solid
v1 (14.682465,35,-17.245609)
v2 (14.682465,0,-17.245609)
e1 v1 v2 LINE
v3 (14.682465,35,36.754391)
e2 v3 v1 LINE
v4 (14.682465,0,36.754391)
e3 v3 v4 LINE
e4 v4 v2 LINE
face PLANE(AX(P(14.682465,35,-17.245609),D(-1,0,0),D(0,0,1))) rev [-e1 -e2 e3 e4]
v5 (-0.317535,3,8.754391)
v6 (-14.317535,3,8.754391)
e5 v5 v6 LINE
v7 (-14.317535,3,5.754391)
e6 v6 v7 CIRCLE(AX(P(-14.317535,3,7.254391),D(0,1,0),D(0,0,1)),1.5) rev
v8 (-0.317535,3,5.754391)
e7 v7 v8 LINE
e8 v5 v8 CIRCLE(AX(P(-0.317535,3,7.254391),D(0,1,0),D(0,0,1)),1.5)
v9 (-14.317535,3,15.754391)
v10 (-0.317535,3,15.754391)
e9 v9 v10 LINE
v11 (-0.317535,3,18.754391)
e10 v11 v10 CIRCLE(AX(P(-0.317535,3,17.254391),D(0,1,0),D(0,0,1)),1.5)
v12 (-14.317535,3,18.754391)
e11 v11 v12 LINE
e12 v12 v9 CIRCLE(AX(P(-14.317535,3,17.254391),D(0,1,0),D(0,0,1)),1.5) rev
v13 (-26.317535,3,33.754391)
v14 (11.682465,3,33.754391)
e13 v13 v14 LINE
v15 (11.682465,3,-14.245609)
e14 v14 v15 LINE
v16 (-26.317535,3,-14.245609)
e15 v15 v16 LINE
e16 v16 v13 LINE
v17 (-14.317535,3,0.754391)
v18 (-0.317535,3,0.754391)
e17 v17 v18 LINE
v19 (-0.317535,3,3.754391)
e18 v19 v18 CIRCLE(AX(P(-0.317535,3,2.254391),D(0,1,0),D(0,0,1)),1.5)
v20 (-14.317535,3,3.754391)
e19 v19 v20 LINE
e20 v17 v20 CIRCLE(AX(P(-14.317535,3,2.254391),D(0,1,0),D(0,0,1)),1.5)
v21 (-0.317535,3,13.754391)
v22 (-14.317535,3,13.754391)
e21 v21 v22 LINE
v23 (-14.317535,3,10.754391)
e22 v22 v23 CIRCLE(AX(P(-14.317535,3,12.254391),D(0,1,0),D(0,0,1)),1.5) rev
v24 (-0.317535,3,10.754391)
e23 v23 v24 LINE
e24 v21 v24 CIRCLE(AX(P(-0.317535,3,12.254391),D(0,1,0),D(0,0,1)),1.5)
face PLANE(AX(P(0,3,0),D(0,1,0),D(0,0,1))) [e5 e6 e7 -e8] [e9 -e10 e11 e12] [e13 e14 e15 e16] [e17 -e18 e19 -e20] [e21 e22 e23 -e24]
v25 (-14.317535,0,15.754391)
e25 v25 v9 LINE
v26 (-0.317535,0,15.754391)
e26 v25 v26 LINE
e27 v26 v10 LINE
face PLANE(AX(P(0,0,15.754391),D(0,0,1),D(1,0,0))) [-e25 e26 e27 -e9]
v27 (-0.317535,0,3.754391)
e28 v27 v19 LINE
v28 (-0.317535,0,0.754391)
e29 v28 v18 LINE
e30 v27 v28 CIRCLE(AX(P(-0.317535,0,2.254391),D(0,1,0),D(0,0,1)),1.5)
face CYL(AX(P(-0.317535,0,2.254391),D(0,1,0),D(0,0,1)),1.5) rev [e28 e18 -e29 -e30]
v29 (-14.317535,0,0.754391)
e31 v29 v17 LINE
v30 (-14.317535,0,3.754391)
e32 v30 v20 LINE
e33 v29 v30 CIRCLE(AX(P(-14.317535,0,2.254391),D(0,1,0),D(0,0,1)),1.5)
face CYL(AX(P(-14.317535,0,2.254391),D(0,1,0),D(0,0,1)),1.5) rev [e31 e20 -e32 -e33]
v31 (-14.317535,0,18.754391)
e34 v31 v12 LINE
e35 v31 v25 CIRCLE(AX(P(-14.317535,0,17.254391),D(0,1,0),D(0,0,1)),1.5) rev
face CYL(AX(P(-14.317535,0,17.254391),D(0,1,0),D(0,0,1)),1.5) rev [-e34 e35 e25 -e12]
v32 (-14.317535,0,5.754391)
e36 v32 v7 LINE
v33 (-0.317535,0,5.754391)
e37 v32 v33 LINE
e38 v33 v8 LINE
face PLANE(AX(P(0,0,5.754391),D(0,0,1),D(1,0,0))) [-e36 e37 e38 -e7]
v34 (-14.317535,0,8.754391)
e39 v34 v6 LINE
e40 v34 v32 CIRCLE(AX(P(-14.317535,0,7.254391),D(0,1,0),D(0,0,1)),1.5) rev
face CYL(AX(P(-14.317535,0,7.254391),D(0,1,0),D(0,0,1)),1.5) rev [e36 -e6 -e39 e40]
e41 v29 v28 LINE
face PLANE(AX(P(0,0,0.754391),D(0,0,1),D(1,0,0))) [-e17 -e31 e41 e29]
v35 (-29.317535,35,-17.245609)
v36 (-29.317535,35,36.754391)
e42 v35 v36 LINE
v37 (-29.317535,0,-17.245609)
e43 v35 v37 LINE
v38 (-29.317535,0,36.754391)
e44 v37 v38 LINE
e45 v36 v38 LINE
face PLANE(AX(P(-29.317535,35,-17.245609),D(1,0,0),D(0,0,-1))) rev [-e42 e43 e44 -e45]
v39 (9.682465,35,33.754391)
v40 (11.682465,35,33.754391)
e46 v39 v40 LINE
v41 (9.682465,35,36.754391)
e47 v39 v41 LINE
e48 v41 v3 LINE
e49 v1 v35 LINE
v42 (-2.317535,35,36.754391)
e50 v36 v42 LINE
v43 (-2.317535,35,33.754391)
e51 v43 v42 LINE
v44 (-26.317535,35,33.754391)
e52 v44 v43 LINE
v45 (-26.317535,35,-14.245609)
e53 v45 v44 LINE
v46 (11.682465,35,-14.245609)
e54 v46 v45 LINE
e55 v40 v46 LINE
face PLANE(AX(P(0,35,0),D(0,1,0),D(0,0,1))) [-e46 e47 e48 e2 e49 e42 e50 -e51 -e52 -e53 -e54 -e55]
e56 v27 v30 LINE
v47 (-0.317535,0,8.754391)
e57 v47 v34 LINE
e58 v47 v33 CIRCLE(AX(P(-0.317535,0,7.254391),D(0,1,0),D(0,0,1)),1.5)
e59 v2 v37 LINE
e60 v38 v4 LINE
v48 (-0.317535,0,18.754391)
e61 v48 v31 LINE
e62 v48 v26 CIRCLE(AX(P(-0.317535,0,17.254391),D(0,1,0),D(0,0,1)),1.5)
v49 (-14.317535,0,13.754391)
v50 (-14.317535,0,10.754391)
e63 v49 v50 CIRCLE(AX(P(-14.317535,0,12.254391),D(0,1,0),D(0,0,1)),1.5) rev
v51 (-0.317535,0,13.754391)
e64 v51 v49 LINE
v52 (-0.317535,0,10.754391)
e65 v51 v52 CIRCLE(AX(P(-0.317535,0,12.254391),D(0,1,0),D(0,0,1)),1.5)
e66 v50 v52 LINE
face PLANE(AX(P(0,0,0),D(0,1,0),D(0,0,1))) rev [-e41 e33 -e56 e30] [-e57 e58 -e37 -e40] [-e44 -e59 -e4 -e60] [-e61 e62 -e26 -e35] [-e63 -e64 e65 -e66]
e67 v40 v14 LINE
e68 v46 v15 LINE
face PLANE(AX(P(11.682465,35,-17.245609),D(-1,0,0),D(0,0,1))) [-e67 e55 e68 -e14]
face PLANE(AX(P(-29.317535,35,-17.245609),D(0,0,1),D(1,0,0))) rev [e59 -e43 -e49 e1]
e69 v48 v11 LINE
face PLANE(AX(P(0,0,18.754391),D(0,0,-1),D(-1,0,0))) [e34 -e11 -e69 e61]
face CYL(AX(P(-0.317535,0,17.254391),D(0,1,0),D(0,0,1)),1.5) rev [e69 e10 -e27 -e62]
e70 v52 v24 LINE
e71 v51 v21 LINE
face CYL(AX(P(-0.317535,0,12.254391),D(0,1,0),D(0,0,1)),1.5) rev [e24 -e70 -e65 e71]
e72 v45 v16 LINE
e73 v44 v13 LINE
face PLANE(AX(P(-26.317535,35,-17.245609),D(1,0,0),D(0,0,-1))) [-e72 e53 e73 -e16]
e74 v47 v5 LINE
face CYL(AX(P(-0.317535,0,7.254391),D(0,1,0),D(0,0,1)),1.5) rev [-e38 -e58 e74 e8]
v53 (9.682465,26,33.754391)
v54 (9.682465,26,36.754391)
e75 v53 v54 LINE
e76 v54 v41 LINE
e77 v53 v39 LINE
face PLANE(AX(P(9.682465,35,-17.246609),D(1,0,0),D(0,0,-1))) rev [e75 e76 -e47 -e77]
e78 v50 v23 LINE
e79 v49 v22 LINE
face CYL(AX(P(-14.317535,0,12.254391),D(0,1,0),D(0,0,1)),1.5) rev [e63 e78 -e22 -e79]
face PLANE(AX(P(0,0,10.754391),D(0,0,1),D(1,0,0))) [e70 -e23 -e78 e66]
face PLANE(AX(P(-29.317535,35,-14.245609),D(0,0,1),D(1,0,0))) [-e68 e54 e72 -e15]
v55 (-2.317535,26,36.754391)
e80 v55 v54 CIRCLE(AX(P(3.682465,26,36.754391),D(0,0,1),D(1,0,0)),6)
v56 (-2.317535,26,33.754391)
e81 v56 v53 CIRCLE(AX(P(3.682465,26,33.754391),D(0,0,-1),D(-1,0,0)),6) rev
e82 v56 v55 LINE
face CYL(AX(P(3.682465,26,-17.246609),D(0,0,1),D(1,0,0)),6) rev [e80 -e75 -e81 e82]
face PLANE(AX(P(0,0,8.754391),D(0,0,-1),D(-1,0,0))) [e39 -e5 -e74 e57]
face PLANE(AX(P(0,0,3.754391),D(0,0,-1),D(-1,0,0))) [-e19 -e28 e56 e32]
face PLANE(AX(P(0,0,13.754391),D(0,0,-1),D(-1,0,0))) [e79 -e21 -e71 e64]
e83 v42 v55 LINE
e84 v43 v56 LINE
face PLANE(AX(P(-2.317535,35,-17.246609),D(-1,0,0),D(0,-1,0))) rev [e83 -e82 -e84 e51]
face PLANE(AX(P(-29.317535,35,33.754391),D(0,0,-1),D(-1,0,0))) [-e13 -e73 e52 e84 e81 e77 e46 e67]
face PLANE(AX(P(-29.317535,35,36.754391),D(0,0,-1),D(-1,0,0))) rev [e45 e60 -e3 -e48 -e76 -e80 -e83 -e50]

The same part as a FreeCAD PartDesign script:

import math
import FreeCAD as App
import Part
import Sketcher
from FreeCAD import Vector
Q = App.Units.Quantity


def faces_at(feature, points):
    """Names of the faces that lie closest to the given points."""
    faces = feature.Shape.Faces
    near = lambda p: min(range(len(faces)), key=lambda i: faces[i].distToShape(Part.Vertex(*p))[0])
    return sorted({f"Face{near(p) + 1}" for p in points})

doc = App.newDocument("Part")
body = doc.addObject("PartDesign::Body", "Body")

sketch1 = doc.addObject("Sketcher::SketchObject", "Sketch")
body.addObject(sketch1)
sketch1.AttachmentSupport = (doc.XZ_Plane, [""])
sketch1.MapMode = "FlatFace"
sketch1.addGeometry(Part.LineSegment(Vector(-29, -17, 0), Vector(-29, 37, 0)), False)
sketch1.addGeometry(Part.LineSegment(Vector(-29, 37, 0), Vector(15, 37, 0)), False)
sketch1.addGeometry(Part.LineSegment(Vector(15, 37, 0), Vector(15, -17, 0)), False)
sketch1.addGeometry(Part.LineSegment(Vector(15, -17, 0), Vector(-29, -17, 0)), False)
sketch1.addConstraint(Sketcher.Constraint("Coincident", 0, 2, 1, 1))
sketch1.addConstraint(Sketcher.Constraint("Coincident", 1, 2, 2, 1))
sketch1.addConstraint(Sketcher.Constraint("Coincident", 2, 2, 3, 1))
sketch1.addConstraint(Sketcher.Constraint("Coincident", 3, 2, 0, 1))
sketch1.addConstraint(Sketcher.Constraint("Vertical", 0))
sketch1.addConstraint(Sketcher.Constraint("Horizontal", 1))
sketch1.addConstraint(Sketcher.Constraint("Vertical", 2))
sketch1.addConstraint(Sketcher.Constraint("Horizontal", 3))
sketch1.addConstraint(Sketcher.Constraint("DistanceX", 1, 1, 1, 2, Q("44 mm")))
sketch1.addConstraint(Sketcher.Constraint("DistanceY", 0, 1, 0, 2, Q("54 mm")))
sketch1.addConstraint(Sketcher.Constraint("DistanceY", -1, 1, 0, 2, Q("36.754391 mm")))
sketch1.addConstraint(Sketcher.Constraint("DistanceX", 0, 2, -1, 1, Q("29.317535 mm")))
pad1 = doc.addObject("PartDesign::Pad", "Pad")
body.addObject(pad1)
pad1.Profile = sketch1
pad1.Length = 35
pad1.Reversed = True
doc.recompute()

thickness = doc.addObject("PartDesign::Thickness", "Thickness")
body.addObject(thickness)
thickness.Base = (pad1, faces_at(pad1, [(-7.318, 35, 9.754)]))
thickness.Value = 3
thickness.Reversed = True
thickness.Join = "Intersection"

sketch2 = doc.addObject("Sketcher::SketchObject", "Sketch001")
body.addObject(sketch2)
sketch2.AttachmentSupport = (doc.XZ_Plane, [""])
sketch2.MapMode = "FlatFace"
sketch2.AttachmentOffset = App.Placement(Vector(0, 0, -3), App.Rotation())
sketch2.addGeometry(Part.LineSegment(Vector(-0.3, 0.8, 0), Vector(-14.3, 0.8, 0)), False)
sketch2.addGeometry(Part.ArcOfCircle(Part.Circle(Vector(-14.3, 2.3, 0), Vector(0, 0, 1), 1.5), math.radians(90), math.radians(270)), False)
sketch2.addGeometry(Part.LineSegment(Vector(-14.3, 3.8, 0), Vector(-0.3, 3.8, 0)), False)
sketch2.addGeometry(Part.ArcOfCircle(Part.Circle(Vector(-0.3, 2.3, 0), Vector(0, 0, 1), 1.5), math.radians(-90), math.radians(90)), False)
sketch2.addGeometry(Part.LineSegment(Vector(-0.3, 5.8, 0), Vector(-14.3, 5.8, 0)), False)
sketch2.addGeometry(Part.ArcOfCircle(Part.Circle(Vector(-14.3, 7.3, 0), Vector(0, 0, 1), 1.5), math.radians(90), math.radians(270)), False)
sketch2.addGeometry(Part.LineSegment(Vector(-14.3, 8.8, 0), Vector(-0.3, 8.8, 0)), False)
sketch2.addGeometry(Part.ArcOfCircle(Part.Circle(Vector(-0.3, 7.3, 0), Vector(0, 0, 1), 1.5), math.radians(-90), math.radians(90)), False)
sketch2.addGeometry(Part.LineSegment(Vector(-0.3, 10.8, 0), Vector(-14.3, 10.8, 0)), False)
sketch2.addGeometry(Part.ArcOfCircle(Part.Circle(Vector(-14.3, 12.3, 0), Vector(0, 0, 1), 1.5), math.radians(90), math.radians(270)), False)
sketch2.addGeometry(Part.LineSegment(Vector(-14.3, 13.8, 0), Vector(-0.3, 13.8, 0)), False)
sketch2.addGeometry(Part.ArcOfCircle(Part.Circle(Vector(-0.3, 12.3, 0), Vector(0, 0, 1), 1.5), math.radians(-90), math.radians(90)), False)
sketch2.addGeometry(Part.LineSegment(Vector(-0.3, 15.8, 0), Vector(-14.3, 15.8, 0)), False)
sketch2.addGeometry(Part.ArcOfCircle(Part.Circle(Vector(-14.3, 17.3, 0), Vector(0, 0, 1), 1.5), math.radians(90), math.radians(270)), False)
sketch2.addGeometry(Part.LineSegment(Vector(-14.3, 18.8, 0), Vector(-0.3, 18.8, 0)), False)
sketch2.addGeometry(Part.ArcOfCircle(Part.Circle(Vector(-0.3, 17.3, 0), Vector(0, 0, 1), 1.5), math.radians(-90), math.radians(90)), False)
sketch2.addConstraint(Sketcher.Constraint("Tangent", 0, 2, 1, 2))
sketch2.addConstraint(Sketcher.Constraint("Tangent", 1, 1, 2, 1))
sketch2.addConstraint(Sketcher.Constraint("Tangent", 2, 2, 3, 2))
sketch2.addConstraint(Sketcher.Constraint("Tangent", 3, 1, 0, 1))
sketch2.addConstraint(Sketcher.Constraint("Tangent", 4, 2, 5, 2))
sketch2.addConstraint(Sketcher.Constraint("Tangent", 5, 1, 6, 1))
sketch2.addConstraint(Sketcher.Constraint("Tangent", 6, 2, 7, 2))
sketch2.addConstraint(Sketcher.Constraint("Tangent", 7, 1, 4, 1))
sketch2.addConstraint(Sketcher.Constraint("Tangent", 8, 2, 9, 2))
sketch2.addConstraint(Sketcher.Constraint("Tangent", 9, 1, 10, 1))
sketch2.addConstraint(Sketcher.Constraint("Tangent", 10, 2, 11, 2))
sketch2.addConstraint(Sketcher.Constraint("Tangent", 11, 1, 8, 1))
sketch2.addConstraint(Sketcher.Constraint("Tangent", 12, 2, 13, 2))
sketch2.addConstraint(Sketcher.Constraint("Tangent", 13, 1, 14, 1))
sketch2.addConstraint(Sketcher.Constraint("Tangent", 14, 2, 15, 2))
sketch2.addConstraint(Sketcher.Constraint("Tangent", 15, 1, 12, 1))
sketch2.addConstraint(Sketcher.Constraint("Horizontal", 0))
sketch2.addConstraint(Sketcher.Constraint("Horizontal", 2))
sketch2.addConstraint(Sketcher.Constraint("Horizontal", 4))
sketch2.addConstraint(Sketcher.Constraint("Horizontal", 6))
sketch2.addConstraint(Sketcher.Constraint("Horizontal", 8))
sketch2.addConstraint(Sketcher.Constraint("Horizontal", 10))
sketch2.addConstraint(Sketcher.Constraint("Horizontal", 12))
sketch2.addConstraint(Sketcher.Constraint("Horizontal", 14))
sketch2.addConstraint(Sketcher.Constraint("Equal", 3, 5))
sketch2.addConstraint(Sketcher.Constraint("Equal", 7, 9))
sketch2.addConstraint(Sketcher.Constraint("Equal", 11, 13))
sketch2.addConstraint(Sketcher.Constraint("Vertical", 1, 3, 5, 3))
sketch2.addConstraint(Sketcher.Constraint("Vertical", 3, 3, 7, 3))
sketch2.addConstraint(Sketcher.Constraint("Vertical", 5, 3, 9, 3))
sketch2.addConstraint(Sketcher.Constraint("Vertical", 7, 3, 11, 3))
sketch2.addConstraint(Sketcher.Constraint("Vertical", 9, 3, 13, 3))
sketch2.addConstraint(Sketcher.Constraint("Vertical", 11, 3, 15, 3))
sketch2.addConstraint(Sketcher.Constraint("Radius", 1, Q("1.5 mm")))
sketch2.addConstraint(Sketcher.Constraint("DistanceX", 0, 2, 0, 1, Q("14 mm")))
sketch2.addConstraint(Sketcher.Constraint("DistanceY", 1, 3, 5, 3, Q("5 mm")))
sketch2.addConstraint(Sketcher.Constraint("DistanceY", 5, 3, 9, 3, Q("5 mm")))
sketch2.addConstraint(Sketcher.Constraint("DistanceY", 9, 3, 13, 3, Q("5 mm")))
sketch2.addConstraint(Sketcher.Constraint("DistanceY", -1, 1, 1, 3, Q("2.254391 mm")))
sketch2.addConstraint(Sketcher.Constraint("DistanceX", 1, 3, -1, 1, Q("14.317535 mm")))
pocket1 = doc.addObject("PartDesign::Pocket", "Pocket")
body.addObject(pocket1)
pocket1.Profile = sketch2
pocket1.Type = "ThroughAll"
pocket1.Reversed = True

sketch3 = doc.addObject("Sketcher::SketchObject", "Sketch002")
body.addObject(sketch3)
sketch3.AttachmentSupport = (doc.XY_Plane, [""])
sketch3.MapMode = "FlatFace"
sketch3.AttachmentOffset = App.Placement(Vector(0, 0, 36.754391), App.Rotation())
sketch3.addGeometry(Part.LineSegment(Vector(10, 26, 0), Vector(10, 35, 0)), False)
sketch3.addGeometry(Part.LineSegment(Vector(10, 35, 0), Vector(-2, 35, 0)), False)
sketch3.addGeometry(Part.LineSegment(Vector(-2, 35, 0), Vector(-2, 26, 0)), False)
sketch3.addGeometry(Part.ArcOfCircle(Part.Circle(Vector(4, 26, 0), Vector(0, 0, 1), 6), math.radians(180), math.radians(360)), False)
sketch3.addConstraint(Sketcher.Constraint("Coincident", 0, 2, 1, 1))
sketch3.addConstraint(Sketcher.Constraint("Coincident", 1, 2, 2, 1))
sketch3.addConstraint(Sketcher.Constraint("Tangent", 2, 2, 3, 1))
sketch3.addConstraint(Sketcher.Constraint("Tangent", 3, 2, 0, 1))
sketch3.addConstraint(Sketcher.Constraint("Vertical", 0))
sketch3.addConstraint(Sketcher.Constraint("Horizontal", 1))
sketch3.addConstraint(Sketcher.Constraint("Vertical", 2))
sketch3.addConstraint(Sketcher.Constraint("Radius", 3, Q("6 mm")))
sketch3.addConstraint(Sketcher.Constraint("DistanceY", 0, 1, 0, 2, Q("9 mm")))
sketch3.addConstraint(Sketcher.Constraint("DistanceY", -1, 1, 3, 3, Q("26 mm")))
sketch3.addConstraint(Sketcher.Constraint("DistanceX", -1, 1, 3, 3, Q("3.682465 mm")))
pocket2 = doc.addObject("PartDesign::Pocket", "Pocket001")
body.addObject(pocket2)
pocket2.Profile = sketch3
pocket2.Type = "UpToFirst"

doc.recompute()
